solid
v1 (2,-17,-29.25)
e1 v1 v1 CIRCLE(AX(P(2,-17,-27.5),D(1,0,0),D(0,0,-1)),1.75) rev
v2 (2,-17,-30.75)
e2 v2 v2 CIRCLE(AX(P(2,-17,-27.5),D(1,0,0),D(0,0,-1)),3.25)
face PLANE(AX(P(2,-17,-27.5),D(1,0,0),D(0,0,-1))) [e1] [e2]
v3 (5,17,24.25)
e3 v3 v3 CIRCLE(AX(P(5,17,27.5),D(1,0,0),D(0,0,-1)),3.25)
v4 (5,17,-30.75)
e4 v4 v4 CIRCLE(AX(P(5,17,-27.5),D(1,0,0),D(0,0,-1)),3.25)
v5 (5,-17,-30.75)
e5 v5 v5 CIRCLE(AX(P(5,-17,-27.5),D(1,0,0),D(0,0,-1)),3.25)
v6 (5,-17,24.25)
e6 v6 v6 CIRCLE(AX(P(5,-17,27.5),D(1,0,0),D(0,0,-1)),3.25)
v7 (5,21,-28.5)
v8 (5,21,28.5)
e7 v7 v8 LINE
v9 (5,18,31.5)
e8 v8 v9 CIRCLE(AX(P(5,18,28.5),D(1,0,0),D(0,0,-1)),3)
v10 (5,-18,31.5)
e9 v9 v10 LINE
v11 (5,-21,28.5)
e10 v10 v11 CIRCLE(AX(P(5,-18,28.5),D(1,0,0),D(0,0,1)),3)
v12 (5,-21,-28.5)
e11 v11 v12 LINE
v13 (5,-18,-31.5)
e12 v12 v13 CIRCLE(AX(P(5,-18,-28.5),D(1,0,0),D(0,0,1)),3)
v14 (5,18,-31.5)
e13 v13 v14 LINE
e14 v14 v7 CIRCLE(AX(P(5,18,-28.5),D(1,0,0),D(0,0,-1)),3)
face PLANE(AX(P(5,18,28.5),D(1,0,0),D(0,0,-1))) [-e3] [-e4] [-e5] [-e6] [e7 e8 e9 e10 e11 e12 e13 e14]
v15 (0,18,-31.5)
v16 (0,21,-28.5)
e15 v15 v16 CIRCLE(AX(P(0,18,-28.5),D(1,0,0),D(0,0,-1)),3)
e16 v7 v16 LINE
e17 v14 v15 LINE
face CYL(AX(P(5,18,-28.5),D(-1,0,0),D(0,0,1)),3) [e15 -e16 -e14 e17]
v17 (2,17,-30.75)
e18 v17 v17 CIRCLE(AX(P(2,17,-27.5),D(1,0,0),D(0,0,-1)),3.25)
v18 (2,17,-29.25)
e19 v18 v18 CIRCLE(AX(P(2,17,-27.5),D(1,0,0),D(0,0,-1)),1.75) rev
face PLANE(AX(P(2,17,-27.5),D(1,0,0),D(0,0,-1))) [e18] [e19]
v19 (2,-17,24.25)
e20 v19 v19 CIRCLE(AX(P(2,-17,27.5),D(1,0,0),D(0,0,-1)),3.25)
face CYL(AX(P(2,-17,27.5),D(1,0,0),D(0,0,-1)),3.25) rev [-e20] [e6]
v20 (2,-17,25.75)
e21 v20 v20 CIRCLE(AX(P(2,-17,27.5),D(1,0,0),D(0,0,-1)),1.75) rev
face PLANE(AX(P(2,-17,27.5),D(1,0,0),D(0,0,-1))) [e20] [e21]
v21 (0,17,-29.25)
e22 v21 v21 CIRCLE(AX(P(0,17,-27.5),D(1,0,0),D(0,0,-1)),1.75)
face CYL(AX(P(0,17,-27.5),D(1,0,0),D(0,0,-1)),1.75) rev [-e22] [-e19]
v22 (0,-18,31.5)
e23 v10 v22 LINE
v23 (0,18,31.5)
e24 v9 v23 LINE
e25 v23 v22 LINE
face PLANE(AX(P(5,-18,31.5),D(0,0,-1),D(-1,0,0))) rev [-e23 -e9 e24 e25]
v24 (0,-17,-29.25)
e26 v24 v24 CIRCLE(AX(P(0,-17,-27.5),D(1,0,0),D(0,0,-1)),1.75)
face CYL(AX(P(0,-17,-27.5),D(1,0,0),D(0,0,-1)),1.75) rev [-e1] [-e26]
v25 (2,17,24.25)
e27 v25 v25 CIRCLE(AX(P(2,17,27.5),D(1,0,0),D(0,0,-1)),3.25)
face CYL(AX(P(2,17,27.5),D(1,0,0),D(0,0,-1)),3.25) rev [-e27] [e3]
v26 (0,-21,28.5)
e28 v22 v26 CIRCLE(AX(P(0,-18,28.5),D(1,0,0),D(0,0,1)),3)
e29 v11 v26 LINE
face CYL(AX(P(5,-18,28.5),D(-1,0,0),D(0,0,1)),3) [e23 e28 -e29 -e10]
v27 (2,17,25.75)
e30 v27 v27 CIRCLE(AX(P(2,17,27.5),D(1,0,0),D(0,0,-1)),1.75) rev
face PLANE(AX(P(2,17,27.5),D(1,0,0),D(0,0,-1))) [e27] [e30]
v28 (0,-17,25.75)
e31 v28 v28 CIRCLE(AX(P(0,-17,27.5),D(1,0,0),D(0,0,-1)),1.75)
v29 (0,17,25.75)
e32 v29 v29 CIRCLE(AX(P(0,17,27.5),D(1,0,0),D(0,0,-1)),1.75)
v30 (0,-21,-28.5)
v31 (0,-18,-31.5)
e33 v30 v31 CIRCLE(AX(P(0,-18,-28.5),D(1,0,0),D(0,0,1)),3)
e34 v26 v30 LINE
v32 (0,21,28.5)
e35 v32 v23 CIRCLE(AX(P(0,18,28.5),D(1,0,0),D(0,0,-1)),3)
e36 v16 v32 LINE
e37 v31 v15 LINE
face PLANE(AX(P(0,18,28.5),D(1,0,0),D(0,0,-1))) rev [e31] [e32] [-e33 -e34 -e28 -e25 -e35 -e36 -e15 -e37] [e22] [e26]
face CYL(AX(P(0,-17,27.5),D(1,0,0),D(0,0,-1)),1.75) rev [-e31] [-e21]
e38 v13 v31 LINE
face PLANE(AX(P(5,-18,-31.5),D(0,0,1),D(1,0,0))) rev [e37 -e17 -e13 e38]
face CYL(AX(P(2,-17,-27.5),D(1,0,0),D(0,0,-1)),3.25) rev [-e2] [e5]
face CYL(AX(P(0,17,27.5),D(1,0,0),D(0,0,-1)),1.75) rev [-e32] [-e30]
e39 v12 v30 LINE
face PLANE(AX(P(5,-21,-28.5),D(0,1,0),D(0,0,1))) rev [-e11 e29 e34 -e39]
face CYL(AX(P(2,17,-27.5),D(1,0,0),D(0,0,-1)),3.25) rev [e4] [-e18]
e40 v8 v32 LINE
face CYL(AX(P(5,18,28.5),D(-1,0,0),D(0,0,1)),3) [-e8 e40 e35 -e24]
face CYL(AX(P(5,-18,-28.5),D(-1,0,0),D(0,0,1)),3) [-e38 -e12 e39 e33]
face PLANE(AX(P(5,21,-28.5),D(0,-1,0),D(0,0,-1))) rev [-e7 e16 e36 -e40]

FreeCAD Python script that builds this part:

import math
import FreeCAD as App
import Part
import Sketcher
from FreeCAD import Vector
Q = App.Units.Quantity

doc = App.newDocument("Part")
body = doc.addObject("PartDesign::Body", "Body")

sketch1 = body.newObject("Sketcher::SketchObject", "Sketch")
sketch1.AttachmentSupport = (doc.getObject("YZ_Plane"), [""])
sketch1.MapMode = "FlatFace"
sketch1.addGeometry([
    Part.LineSegment(Vector(-18, -31.5, 0), Vector(18, -31.5, 0)),
    Part.ArcOfCircle(Part.Circle(Vector(18, -28.5, 0), Vector(0, 0, 1), 3), math.radians(-90), math.radians(0)),
    Part.LineSegment(Vector(21, -28.5, 0), Vector(21, 28.5, 0)),
    Part.ArcOfCircle(Part.Circle(Vector(18, 28.5, 0), Vector(0, 0, 1), 3), math.radians(0), math.radians(90)),
    Part.LineSegment(Vector(18, 31.5, 0), Vector(-18, 31.5, 0)),
    Part.ArcOfCircle(Part.Circle(Vector(-18, 28.5, 0), Vector(0, 0, 1), 3), math.radians(90), math.radians(180)),
    Part.LineSegment(Vector(-21, 28.5, 0), Vector(-21, -28.5, 0)),
    Part.ArcOfCircle(Part.Circle(Vector(-18, -28.5, 0), Vector(0, 0, 1), 3), math.radians(180), math.radians(270)),
], False)
sketch1.addConstraint([
    Sketcher.Constraint("Tangent", 0, 2, 1, 1),
    Sketcher.Constraint("Tangent", 1, 2, 2, 1),
    Sketcher.Constraint("Tangent", 2, 2, 3, 1),
    Sketcher.Constraint("Tangent", 3, 2, 4, 1),
    Sketcher.Constraint("Tangent", 4, 2, 5, 1),
    Sketcher.Constraint("Tangent", 5, 2, 6, 1),
    Sketcher.Constraint("Tangent", 6, 2, 7, 1),
    Sketcher.Constraint("Tangent", 7, 2, 0, 1),
    Sketcher.Constraint("Horizontal", 0),
    Sketcher.Constraint("Vertical", 2),
    Sketcher.Constraint("Horizontal", 4),
    Sketcher.Constraint("Vertical", 6),
    Sketcher.Constraint("Equal", 1, 3),
    Sketcher.Constraint("Equal", 3, 5),
    Sketcher.Constraint("Equal", 5, 7),
    Sketcher.Constraint("Symmetric", 1, 3, 5, 3, -1, 1),
    Sketcher.Constraint("Radius", 1, Q("3 mm")),
    Sketcher.Constraint("DistanceX", 0, 1, 0, 2, Q("36 mm")),
    Sketcher.Constraint("DistanceY", 2, 1, 2, 2, Q("57 mm")),
])
pad1 = body.newObject("PartDesign::Pad", "Pad")
pad1.Profile = sketch1
pad1.Length = 5

sketch2 = body.newObject("Sketcher::SketchObject", "Sketch001")
sketch2.AttachmentSupport = (doc.getObject("YZ_Plane"), [""])
sketch2.MapMode = "FlatFace"
sketch2.AttachmentOffset = App.Placement(Vector(0, 0, 5), App.Rotation())
sketch2.addGeometry([
    Part.Circle(Vector(-17, 27.5, 0), Vector(0, 0, 1), 1.75),
    Part.Circle(Vector(17, 27.5, 0), Vector(0, 0, 1), 1.75),
    Part.Circle(Vector(17, -27.5, 0), Vector(0, 0, 1), 1.75),
    Part.Circle(Vector(-17, -27.5, 0), Vector(0, 0, 1), 1.75),
], False)
sketch2.addConstraint([
    Sketcher.Constraint("Equal", 0, 1),
    Sketcher.Constraint("Equal", 1, 2),
    Sketcher.Constraint("Equal", 2, 3),
    Sketcher.Constraint("Symmetric", 0, 3, 2, 3, -1, 1),
    Sketcher.Constraint("Symmetric", 1, 3, 3, 3, -1, 1),
    Sketcher.Constraint("Symmetric", 0, 3, 1, 3, -2),
    Sketcher.Constraint("Diameter", 0, Q("3.5 mm")),
    Sketcher.Constraint("DistanceX", 0, 3, -1, 1, Q("17 mm")),
    Sketcher.Constraint("DistanceY", 2, 3, 1, 3, Q("55 mm")),
])
pocket1 = body.newObject("PartDesign::Pocket", "Pocket")
pocket1.Profile = sketch2
pocket1.Type = "ThroughAll"

sketch3 = body.newObject("Sketcher::SketchObject", "Sketch002")
sketch3.AttachmentSupport = (doc.getObject("YZ_Plane"), [""])
sketch3.MapMode = "FlatFace"
sketch3.AttachmentOffset = App.Placement(Vector(0, 0, 5), App.Rotation())
sketch3.addGeometry([
    Part.Circle(Vector(17, 27.5, 0), Vector(0, 0, 1), 3.25),
    Part.Circle(Vector(-17, 27.5, 0), Vector(0, 0, 1), 3.25),
    Part.Circle(Vector(17, -27.5, 0), Vector(0, 0, 1), 3.25),
    Part.Circle(Vector(-17, -27.5, 0), Vector(0, 0, 1), 3.25),
], False)
sketch3.addConstraint([
    Sketcher.Constraint("Equal", 0, 1),
    Sketcher.Constraint("Equal", 1, 2),
    Sketcher.Constraint("Equal", 2, 3),
    Sketcher.Constraint("Symmetric", 1, 3, 2, 3, -1, 1),
    Sketcher.Constraint("Symmetric", 0, 3, 3, 3, -1, 1),
    Sketcher.Constraint("Symmetric", 0, 3, 1, 3, -2),
    Sketcher.Constraint("Diameter", 0, Q("6.5 mm")),
    Sketcher.Constraint("DistanceX", -1, 1, 0, 3, Q("17 mm")),
    Sketcher.Constraint("DistanceY", 2, 3, 0, 3, Q("55 mm")),
])
pocket2 = body.newObject("PartDesign::Pocket", "Pocket001")
pocket2.Profile = sketch3
pocket2.Length = 3

doc.recompute()
